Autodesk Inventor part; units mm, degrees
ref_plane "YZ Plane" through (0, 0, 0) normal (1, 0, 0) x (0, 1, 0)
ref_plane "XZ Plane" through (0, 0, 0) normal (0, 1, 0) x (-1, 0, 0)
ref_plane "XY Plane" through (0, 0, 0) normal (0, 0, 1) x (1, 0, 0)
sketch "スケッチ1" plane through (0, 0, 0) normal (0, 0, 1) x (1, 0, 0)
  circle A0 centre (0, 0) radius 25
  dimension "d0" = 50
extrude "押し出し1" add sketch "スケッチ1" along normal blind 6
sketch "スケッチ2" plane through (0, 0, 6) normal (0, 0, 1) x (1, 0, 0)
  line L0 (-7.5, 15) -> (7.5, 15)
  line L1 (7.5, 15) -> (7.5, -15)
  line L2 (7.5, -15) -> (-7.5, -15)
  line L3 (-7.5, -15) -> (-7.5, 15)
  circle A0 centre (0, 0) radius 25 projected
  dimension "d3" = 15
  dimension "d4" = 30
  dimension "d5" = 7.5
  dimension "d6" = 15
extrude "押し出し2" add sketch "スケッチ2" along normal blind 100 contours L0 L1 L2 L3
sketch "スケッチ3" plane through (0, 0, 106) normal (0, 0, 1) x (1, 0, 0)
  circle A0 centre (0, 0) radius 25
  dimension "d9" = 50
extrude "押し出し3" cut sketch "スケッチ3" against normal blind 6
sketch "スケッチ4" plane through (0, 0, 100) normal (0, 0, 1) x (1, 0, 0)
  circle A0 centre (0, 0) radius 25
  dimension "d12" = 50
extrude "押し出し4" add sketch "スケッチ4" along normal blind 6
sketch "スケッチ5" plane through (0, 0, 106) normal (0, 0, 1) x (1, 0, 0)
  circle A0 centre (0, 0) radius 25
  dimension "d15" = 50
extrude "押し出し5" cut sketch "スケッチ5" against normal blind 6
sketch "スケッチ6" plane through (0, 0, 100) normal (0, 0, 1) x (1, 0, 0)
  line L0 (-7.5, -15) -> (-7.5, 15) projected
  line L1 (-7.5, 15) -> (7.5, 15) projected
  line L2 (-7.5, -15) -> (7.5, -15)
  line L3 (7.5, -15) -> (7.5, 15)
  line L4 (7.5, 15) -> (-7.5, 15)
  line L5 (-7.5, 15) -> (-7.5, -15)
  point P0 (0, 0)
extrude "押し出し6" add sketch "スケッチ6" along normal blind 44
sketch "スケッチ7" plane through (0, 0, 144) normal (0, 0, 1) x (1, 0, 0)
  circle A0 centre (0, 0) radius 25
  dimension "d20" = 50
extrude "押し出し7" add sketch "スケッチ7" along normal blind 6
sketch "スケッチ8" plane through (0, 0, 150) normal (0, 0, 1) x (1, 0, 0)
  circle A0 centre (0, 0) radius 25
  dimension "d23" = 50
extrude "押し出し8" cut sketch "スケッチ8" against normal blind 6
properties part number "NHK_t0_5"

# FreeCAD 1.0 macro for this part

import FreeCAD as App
import Part
import Sketcher
Q = App.Units.Quantity

doc = App.newDocument("Part")
body = doc.addObject("PartDesign::Body", "Body")

# Sketch on XY plane
sketch1 = body.newObject("Sketcher::SketchObject", "Sketch")
sketch1.AttachmentSupport = (doc.getObject("XY_Plane"), [""])
sketch1.MapMode = "FlatFace"
sketch1.addGeometry(Part.Circle(App.Vector(0, 0, 0), App.Vector(0, 0, 1), 25), False)
sketch1.addConstraint(Sketcher.Constraint("Coincident", 0, 3, -1, 1))
sketch1.addConstraint(Sketcher.Constraint("Diameter", 0, Q("50 mm")))
pad1 = body.newObject("PartDesign::Pad", "Pad")
pad1.Profile = sketch1
pad1.Length = 6

# Sketch on XY plane
sketch2 = body.newObject("Sketcher::SketchObject", "Sketch001")
sketch2.AttachmentSupport = (doc.getObject("XY_Plane"), [""])
sketch2.MapMode = "FlatFace"
sketch2.AttachmentOffset = App.Placement(App.Vector(0, 0, 6), App.Rotation())
sketch2.addGeometry(Part.LineSegment(App.Vector(8, 15, 0), App.Vector(-8, 15, 0)), False)
sketch2.addGeometry(Part.LineSegment(App.Vector(-8, 15, 0), App.Vector(-8, -15, 0)), False)
sketch2.addGeometry(Part.LineSegment(App.Vector(-8, -15, 0), App.Vector(8, -15, 0)), False)
sketch2.addGeometry(Part.LineSegment(App.Vector(8, -15, 0), App.Vector(8, 15, 0)), False)
sketch2.addConstraint(Sketcher.Constraint("Coincident", 0, 2, 1, 1))
sketch2.addConstraint(Sketcher.Constraint("Coincident", 1, 2, 2, 1))
sketch2.addConstraint(Sketcher.Constraint("Coincident", 2, 2, 3, 1))
sketch2.addConstraint(Sketcher.Constraint("Coincident", 3, 2, 0, 1))
sketch2.addConstraint(Sketcher.Constraint("Horizontal", 0))
sketch2.addConstraint(Sketcher.Constraint("Vertical", 1))
sketch2.addConstraint(Sketcher.Constraint("Horizontal", 2))
sketch2.addConstraint(Sketcher.Constraint("Vertical", 3))
sketch2.addConstraint(Sketcher.Constraint("Symmetric", 0, 2, 2, 2, -1, 1))
sketch2.addConstraint(Sketcher.Constraint("DistanceX", 0, 2, 0, 1, Q("15 mm")))
sketch2.addConstraint(Sketcher.Constraint("DistanceY", 1, 2, 1, 1, Q("30 mm")))
pad2 = body.newObject("PartDesign::Pad", "Pad001")
pad2.Profile = sketch2
pad2.Length = 100

# Sketch on XY plane
sketch3 = body.newObject("Sketcher::SketchObject", "Sketch002")
sketch3.AttachmentSupport = (doc.getObject("XY_Plane"), [""])
sketch3.MapMode = "FlatFace"
sketch3.AttachmentOffset = App.Placement(App.Vector(0, 0, 106), App.Rotation())
sketch3.addGeometry(Part.Circle(App.Vector(0, 0, 0), App.Vector(0, 0, 1), 25), False)
sketch3.addConstraint(Sketcher.Constraint("Coincident", 0, 3, -1, 1))
sketch3.addConstraint(Sketcher.Constraint("Diameter", 0, Q("50 mm")))
pocket1 = body.newObject("PartDesign::Pocket", "Pocket")
pocket1.Profile = sketch3
pocket1.Length = 6

# Sketch on XY plane
sketch4 = body.newObject("Sketcher::SketchObject", "Sketch003")
sketch4.AttachmentSupport = (doc.getObject("XY_Plane"), [""])
sketch4.MapMode = "FlatFace"
sketch4.AttachmentOffset = App.Placement(App.Vector(0, 0, 100), App.Rotation())
sketch4.addGeometry(Part.Circle(App.Vector(0, 0, 0), App.Vector(0, 0, 1), 25), False)
sketch4.addConstraint(Sketcher.Constraint("Coincident", 0, 3, -1, 1))
sketch4.addConstraint(Sketcher.Constraint("Diameter", 0, Q("50 mm")))
pad3 = body.newObject("PartDesign::Pad", "Pad002")
pad3.Profile = sketch4
pad3.Length = 6

# Sketch on XY plane
sketch5 = body.newObject("Sketcher::SketchObject", "Sketch004")
sketch5.AttachmentSupport = (doc.getObject("XY_Plane"), [""])
sketch5.MapMode = "FlatFace"
sketch5.AttachmentOffset = App.Placement(App.Vector(0, 0, 106), App.Rotation())
sketch5.addGeometry(Part.Circle(App.Vector(0, 0, 0), App.Vector(0, 0, 1), 25), False)
sketch5.addConstraint(Sketcher.Constraint("Coincident", 0, 3, -1, 1))
sketch5.addConstraint(Sketcher.Constraint("Diameter", 0, Q("50 mm")))
pocket2 = body.newObject("PartDesign::Pocket", "Pocket001")
pocket2.Profile = sketch5
pocket2.Length = 6

# Sketch on XY plane
sketch6 = body.newObject("Sketcher::SketchObject", "Sketch005")
sketch6.AttachmentSupport = (doc.getObject("XY_Plane"), [""])
sketch6.MapMode = "FlatFace"
sketch6.AttachmentOffset = App.Placement(App.Vector(0, 0, 100), App.Rotation())
sketch6.addGeometry(Part.LineSegment(App.Vector(-8, 15, 0), App.Vector(-8, -15, 0)), False)
sketch6.addGeometry(Part.LineSegment(App.Vector(-8, -15, 0), App.Vector(8, -15, 0)), False)
sketch6.addGeometry(Part.LineSegment(App.Vector(8, -15, 0), App.Vector(8, 15, 0)), False)
sketch6.addGeometry(Part.LineSegment(App.Vector(8, 15, 0), App.Vector(-8, 15, 0)), False)
sketch6.addConstraint(Sketcher.Constraint("Coincident", 0, 2, 1, 1))
sketch6.addConstraint(Sketcher.Constraint("Coincident", 1, 2, 2, 1))
sketch6.addConstraint(Sketcher.Constraint("Coincident", 2, 2, 3, 1))
sketch6.addConstraint(Sketcher.Constraint("Coincident", 3, 2, 0, 1))
sketch6.addConstraint(Sketcher.Constraint("Vertical", 0))
sketch6.addConstraint(Sketcher.Constraint("Horizontal", 1))
sketch6.addConstraint(Sketcher.Constraint("Vertical", 2))
sketch6.addConstraint(Sketcher.Constraint("Horizontal", 3))
sketch6.addConstraint(Sketcher.Constraint("Symmetric", 0, 2, 2, 2, -1, 1))
sketch6.addConstraint(Sketcher.Constraint("DistanceX", 1, 1, 1, 2, Q("15 mm")))
sketch6.addConstraint(Sketcher.Constraint("DistanceY", 0, 2, 0, 1, Q("30 mm")))
pad4 = body.newObject("PartDesign::Pad", "Pad003")
pad4.Profile = sketch6
pad4.Length = 44

# Sketch on XY plane
sketch7 = body.newObject("Sketcher::SketchObject", "Sketch006")
sketch7.AttachmentSupport = (doc.getObject("XY_Plane"), [""])
sketch7.MapMode = "FlatFace"
sketch7.AttachmentOffset = App.Placement(App.Vector(0, 0, 144), App.Rotation())
sketch7.addGeometry(Part.Circle(App.Vector(0, 0, 0), App.Vector(0, 0, 1), 25), False)
sketch7.addConstraint(Sketcher.Constraint("Coincident", 0, 3, -1, 1))
sketch7.addConstraint(Sketcher.Constraint("Diameter", 0, Q("50 mm")))
pad5 = body.newObject("PartDesign::Pad", "Pad004")
pad5.Profile = sketch7
pad5.Length = 6

# Sketch on XY plane
sketch8 = body.newObject("Sketcher::SketchObject", "Sketch007")
sketch8.AttachmentSupport = (doc.getObject("XY_Plane"), [""])
sketch8.MapMode = "FlatFace"
sketch8.AttachmentOffset = App.Placement(App.Vector(0, 0, 150), App.Rotation())
sketch8.addGeometry(Part.Circle(App.Vector(0, 0, 0), App.Vector(0, 0, 1), 25), False)
sketch8.addConstraint(Sketcher.Constraint("Coincident", 0, 3, -1, 1))
sketch8.addConstraint(Sketcher.Constraint("Diameter", 0, Q("50 mm")))
pocket3 = body.newObject("PartDesign::Pocket", "Pocket002")
pocket3.Profile = sketch8
pocket3.Length = 6

doc.recompute()
